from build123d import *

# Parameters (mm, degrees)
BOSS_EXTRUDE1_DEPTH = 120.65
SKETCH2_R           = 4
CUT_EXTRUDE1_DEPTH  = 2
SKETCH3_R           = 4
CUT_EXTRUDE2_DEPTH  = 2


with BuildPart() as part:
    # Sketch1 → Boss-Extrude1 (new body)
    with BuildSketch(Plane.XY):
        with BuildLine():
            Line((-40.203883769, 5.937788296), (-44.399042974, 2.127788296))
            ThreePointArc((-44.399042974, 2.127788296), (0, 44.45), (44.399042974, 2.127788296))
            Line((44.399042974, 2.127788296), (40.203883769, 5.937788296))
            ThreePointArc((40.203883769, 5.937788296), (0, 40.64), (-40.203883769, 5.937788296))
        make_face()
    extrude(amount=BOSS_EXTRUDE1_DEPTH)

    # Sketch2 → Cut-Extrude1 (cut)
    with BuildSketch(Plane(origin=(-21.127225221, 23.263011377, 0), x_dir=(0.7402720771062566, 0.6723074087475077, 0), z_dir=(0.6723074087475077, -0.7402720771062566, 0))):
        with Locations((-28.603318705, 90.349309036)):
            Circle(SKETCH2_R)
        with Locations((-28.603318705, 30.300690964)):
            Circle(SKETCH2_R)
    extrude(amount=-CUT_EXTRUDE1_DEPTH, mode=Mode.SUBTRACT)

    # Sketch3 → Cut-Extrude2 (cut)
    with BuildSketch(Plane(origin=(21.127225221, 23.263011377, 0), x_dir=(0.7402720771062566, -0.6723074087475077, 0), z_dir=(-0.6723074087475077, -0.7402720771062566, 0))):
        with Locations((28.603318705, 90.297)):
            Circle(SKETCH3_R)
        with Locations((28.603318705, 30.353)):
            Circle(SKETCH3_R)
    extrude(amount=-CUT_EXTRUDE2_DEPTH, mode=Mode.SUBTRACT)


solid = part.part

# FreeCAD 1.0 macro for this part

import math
import FreeCAD as App
import Part
import Sketcher
Q = App.Units.Quantity

doc = App.newDocument("Part")
body = doc.addObject("PartDesign::Body", "Body")

sketch1 = body.newObject("Sketcher::SketchObject", "Sketch")
sketch1.AttachmentSupport = (doc.getObject("XY_Plane"), [""])
sketch1.MapMode = "FlatFace"
sketch1.addGeometry([
    Part.LineSegment(App.Vector(-44.399043, 2.127788, 0), App.Vector(-40.203884, 5.937788, 0)),
    Part.ArcOfCircle(Part.Circle(App.Vector(0, 0, 0), App.Vector(0, 0, 1), 40.64), math.radians(8.401388), math.radians(171.598612)),
    Part.LineSegment(App.Vector(40.203884, 5.937788, 0), App.Vector(44.399043, 2.127788, 0)),
    Part.ArcOfCircle(Part.Circle(App.Vector(0, 0, 0), App.Vector(0, 0, 1), 44.45), math.radians(2.743755), math.radians(177.256245)),
], False)
sketch1.addConstraint([
    Sketcher.Constraint("Coincident", 0, 2, 1, 2),
    Sketcher.Constraint("Coincident", 1, 1, 2, 1),
    Sketcher.Constraint("Coincident", 2, 2, 3, 1),
    Sketcher.Constraint("Coincident", 3, 2, 0, 1),
    Sketcher.Constraint("Coincident", 1, 3, -1, 1),
    Sketcher.Constraint("Coincident", 3, 3, -1, 1),
    Sketcher.Constraint("Horizontal", 0, 2, 1, 1),
    Sketcher.Constraint("Horizontal", 2, 2, 3, 2),
    Sketcher.Constraint("Radius", 1, Q("1.6 in")),
    Sketcher.Constraint("Radius", 3, Q("1.75 in")),
    Sketcher.Constraint("DistanceY", 2, 2, 1, 1, Q("0.15 in")),
    Sketcher.Constraint("Distance", 0, Q("5.66705 mm")),
])
pad1 = body.newObject("PartDesign::Pad", "Pad")
pad1.Profile = sketch1
pad1.Length = Q("4.75 in")

sketch2 = body.newObject("Sketcher::SketchObject", "Sketch001")
sketch2.Placement = App.Placement(App.Vector(-21.127225, 23.263011, 0), App.Rotation(App.Vector(0.740272077, 0.672307409, 0), App.Vector(0, 0, 1), App.Vector(0.672307409, -0.740272077, 0), "ZXY"))
sketch2.addGeometry([
    Part.Circle(App.Vector(-28.603319, 90.349309, 0), App.Vector(0, 0, 1), 4),
    Part.Circle(App.Vector(-28.603319, 30.300691, 0), App.Vector(0, 0, 1), 4),
], False)
sketch2.addConstraint([
    Sketcher.Constraint("Equal", 0, 1),
    Sketcher.Constraint("Vertical", 0, 3, 1, 3),
    Sketcher.Constraint("Diameter", 0, Q("8 mm")),
    Sketcher.Constraint("DistanceX", 0, 3, -1, 1, Q("28.603319 mm")),
    Sketcher.Constraint("DistanceY", -1, 1, 0, 3, Q("90.349309 mm")),
    Sketcher.Constraint("DistanceY", -1, 1, 1, 3, Q("30.300691 mm")),
])
pocket1 = body.newObject("PartDesign::Pocket", "Pocket")
pocket1.Profile = sketch2
pocket1.Length = 2

sketch3 = body.newObject("Sketcher::SketchObject", "Sketch002")
sketch3.Placement = App.Placement(App.Vector(21.127225, 23.263011, 0), App.Rotation(App.Vector(0.740272077, -0.672307409, 0), App.Vector(0, 0, 1), App.Vector(-0.672307409, -0.740272077, 0), "ZXY"))
sketch3.addGeometry([
    Part.Circle(App.Vector(28.603319, 90.297, 0), App.Vector(0, 0, 1), 4),
    Part.Circle(App.Vector(28.603319, 30.353, 0), App.Vector(0, 0, 1), 4),
], False)
sketch3.addConstraint([
    Sketcher.Constraint("Equal", 0, 1),
    Sketcher.Constraint("Vertical", 0, 3, 1, 3),
    Sketcher.Constraint("Diameter", 0, Q("8 mm")),
    Sketcher.Constraint("DistanceY", 1, 3, 0, 3, Q("2.36 in")),
    Sketcher.Constraint("DistanceY", -1, 1, 0, 3, Q("3.555 in")),
    Sketcher.Constraint("DistanceX", -1, 1, 0, 3, Q("28.603319 mm")),
])
pocket2 = body.newObject("PartDesign::Pocket", "Pocket001")
pocket2.Profile = sketch3
pocket2.Length = 2

doc.recompute()
